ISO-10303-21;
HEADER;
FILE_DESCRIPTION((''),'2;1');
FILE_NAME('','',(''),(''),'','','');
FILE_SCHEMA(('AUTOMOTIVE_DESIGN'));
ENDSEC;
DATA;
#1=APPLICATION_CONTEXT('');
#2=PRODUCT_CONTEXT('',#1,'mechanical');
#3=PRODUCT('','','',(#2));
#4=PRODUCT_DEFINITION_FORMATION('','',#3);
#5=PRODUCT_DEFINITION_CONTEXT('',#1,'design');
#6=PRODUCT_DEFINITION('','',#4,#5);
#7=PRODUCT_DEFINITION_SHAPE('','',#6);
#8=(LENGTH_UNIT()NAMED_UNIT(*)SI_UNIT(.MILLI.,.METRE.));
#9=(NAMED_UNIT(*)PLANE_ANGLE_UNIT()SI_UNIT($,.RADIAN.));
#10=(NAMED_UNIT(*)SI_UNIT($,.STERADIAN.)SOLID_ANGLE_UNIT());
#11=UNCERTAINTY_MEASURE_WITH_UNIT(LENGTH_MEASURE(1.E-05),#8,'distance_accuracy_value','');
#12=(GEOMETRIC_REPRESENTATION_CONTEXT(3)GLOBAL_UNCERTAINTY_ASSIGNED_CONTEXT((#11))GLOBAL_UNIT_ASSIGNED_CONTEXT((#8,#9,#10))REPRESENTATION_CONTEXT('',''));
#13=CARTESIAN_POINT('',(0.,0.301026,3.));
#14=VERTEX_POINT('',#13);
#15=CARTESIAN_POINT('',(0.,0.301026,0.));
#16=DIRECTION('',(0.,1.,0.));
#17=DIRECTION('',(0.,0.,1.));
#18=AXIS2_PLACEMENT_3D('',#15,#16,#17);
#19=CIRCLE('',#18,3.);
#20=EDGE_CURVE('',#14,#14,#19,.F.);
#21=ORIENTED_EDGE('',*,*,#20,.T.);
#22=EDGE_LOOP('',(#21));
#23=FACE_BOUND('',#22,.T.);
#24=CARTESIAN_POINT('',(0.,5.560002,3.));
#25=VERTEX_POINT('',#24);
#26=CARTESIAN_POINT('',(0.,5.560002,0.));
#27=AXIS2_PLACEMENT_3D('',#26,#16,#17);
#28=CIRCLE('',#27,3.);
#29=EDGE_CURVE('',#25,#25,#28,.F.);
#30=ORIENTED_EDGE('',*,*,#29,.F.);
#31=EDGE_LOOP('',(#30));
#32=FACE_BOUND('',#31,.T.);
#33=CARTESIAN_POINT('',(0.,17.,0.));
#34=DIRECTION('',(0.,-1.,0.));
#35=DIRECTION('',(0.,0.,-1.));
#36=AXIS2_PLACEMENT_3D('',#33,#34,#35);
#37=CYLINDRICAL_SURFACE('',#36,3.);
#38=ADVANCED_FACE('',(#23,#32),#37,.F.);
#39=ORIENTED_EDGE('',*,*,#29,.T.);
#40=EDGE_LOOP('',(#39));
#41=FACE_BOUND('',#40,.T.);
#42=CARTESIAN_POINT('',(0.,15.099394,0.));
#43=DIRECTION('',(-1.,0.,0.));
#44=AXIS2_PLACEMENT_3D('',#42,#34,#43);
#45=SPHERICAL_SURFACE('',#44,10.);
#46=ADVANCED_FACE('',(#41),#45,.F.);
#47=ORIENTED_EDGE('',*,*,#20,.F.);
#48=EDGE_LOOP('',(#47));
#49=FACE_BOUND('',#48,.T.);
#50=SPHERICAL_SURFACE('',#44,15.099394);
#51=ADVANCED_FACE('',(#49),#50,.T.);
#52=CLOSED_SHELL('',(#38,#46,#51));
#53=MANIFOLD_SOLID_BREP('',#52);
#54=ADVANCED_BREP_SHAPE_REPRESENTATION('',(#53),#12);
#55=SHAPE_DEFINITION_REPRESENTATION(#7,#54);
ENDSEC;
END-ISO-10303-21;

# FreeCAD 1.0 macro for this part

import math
import FreeCAD as App
import Part
import Sketcher

V = App.Vector
Q = App.Units.Quantity

doc = App.newDocument("Part")
body = doc.addObject("PartDesign::Body", "Body")

sketch1 = body.newObject("Sketcher::SketchObject", "Sketch")
sketch1.AttachmentSupport = (doc.getObject("XY_Plane"), [""])
sketch1.MapMode = "FlatFace"
sketch1.addGeometry([
    Part.LineSegment(V(0, 25.099394, 0), V(0, 30.198788, 0)),
    Part.ArcOfCircle(Part.Circle(V(0, 15.099394, 0), V(0, 0, 1), 15.099394), math.radians(90), math.radians(270)),
    Part.LineSegment(V(0, 0, 0), V(0, 5.099394, 0)),
    Part.ArcOfCircle(Part.Circle(V(0, 15.099394, 0), V(0, 0, 1), 10), math.radians(90), math.radians(270)),
], False)
sketch1.addConstraint([
    Sketcher.Constraint("Coincident", 0, 2, 1, 1),
    Sketcher.Constraint("Coincident", 1, 2, 2, 1),
    Sketcher.Constraint("Coincident", 2, 2, 3, 2),
    Sketcher.Constraint("Coincident", 3, 1, 0, 1),
    Sketcher.Constraint("Vertical", 0),
    Sketcher.Constraint("Vertical", 2),
    Sketcher.Constraint("Coincident", 1, 2, -1, 1),
    Sketcher.Constraint("Coincident", 3, 3, 1, 3),
    Sketcher.Constraint("PointOnObject", 1, 3, -2),
    Sketcher.Constraint("PointOnObject", 0, 2, -2),
    Sketcher.Constraint("Radius", 3, Q("10 mm")),
    Sketcher.Constraint("Radius", 1, Q("15.099394 mm")),
])
revolution = body.newObject("PartDesign::Revolution", "Revolution")
revolution.Profile = sketch1
revolution.ReferenceAxis = (sketch1, ["V_Axis"])
revolution.Angle = 360

sketch2 = body.newObject("Sketcher::SketchObject", "Sketch001")
sketch2.AttachmentSupport = (doc.getObject("XZ_Plane"), [""])
sketch2.MapMode = "FlatFace"
sketch2.addGeometry(Part.Circle(V(0, 0, 0), V(0, 0, 1), 3), False)
sketch2.addConstraint([
    Sketcher.Constraint("Coincident", 0, 3, -1, 1),
    Sketcher.Constraint("Diameter", 0, Q("6 mm")),
])
pocket1 = body.newObject("PartDesign::Pocket", "Pocket")
pocket1.Profile = sketch2
pocket1.Length = 17

doc.recompute()
